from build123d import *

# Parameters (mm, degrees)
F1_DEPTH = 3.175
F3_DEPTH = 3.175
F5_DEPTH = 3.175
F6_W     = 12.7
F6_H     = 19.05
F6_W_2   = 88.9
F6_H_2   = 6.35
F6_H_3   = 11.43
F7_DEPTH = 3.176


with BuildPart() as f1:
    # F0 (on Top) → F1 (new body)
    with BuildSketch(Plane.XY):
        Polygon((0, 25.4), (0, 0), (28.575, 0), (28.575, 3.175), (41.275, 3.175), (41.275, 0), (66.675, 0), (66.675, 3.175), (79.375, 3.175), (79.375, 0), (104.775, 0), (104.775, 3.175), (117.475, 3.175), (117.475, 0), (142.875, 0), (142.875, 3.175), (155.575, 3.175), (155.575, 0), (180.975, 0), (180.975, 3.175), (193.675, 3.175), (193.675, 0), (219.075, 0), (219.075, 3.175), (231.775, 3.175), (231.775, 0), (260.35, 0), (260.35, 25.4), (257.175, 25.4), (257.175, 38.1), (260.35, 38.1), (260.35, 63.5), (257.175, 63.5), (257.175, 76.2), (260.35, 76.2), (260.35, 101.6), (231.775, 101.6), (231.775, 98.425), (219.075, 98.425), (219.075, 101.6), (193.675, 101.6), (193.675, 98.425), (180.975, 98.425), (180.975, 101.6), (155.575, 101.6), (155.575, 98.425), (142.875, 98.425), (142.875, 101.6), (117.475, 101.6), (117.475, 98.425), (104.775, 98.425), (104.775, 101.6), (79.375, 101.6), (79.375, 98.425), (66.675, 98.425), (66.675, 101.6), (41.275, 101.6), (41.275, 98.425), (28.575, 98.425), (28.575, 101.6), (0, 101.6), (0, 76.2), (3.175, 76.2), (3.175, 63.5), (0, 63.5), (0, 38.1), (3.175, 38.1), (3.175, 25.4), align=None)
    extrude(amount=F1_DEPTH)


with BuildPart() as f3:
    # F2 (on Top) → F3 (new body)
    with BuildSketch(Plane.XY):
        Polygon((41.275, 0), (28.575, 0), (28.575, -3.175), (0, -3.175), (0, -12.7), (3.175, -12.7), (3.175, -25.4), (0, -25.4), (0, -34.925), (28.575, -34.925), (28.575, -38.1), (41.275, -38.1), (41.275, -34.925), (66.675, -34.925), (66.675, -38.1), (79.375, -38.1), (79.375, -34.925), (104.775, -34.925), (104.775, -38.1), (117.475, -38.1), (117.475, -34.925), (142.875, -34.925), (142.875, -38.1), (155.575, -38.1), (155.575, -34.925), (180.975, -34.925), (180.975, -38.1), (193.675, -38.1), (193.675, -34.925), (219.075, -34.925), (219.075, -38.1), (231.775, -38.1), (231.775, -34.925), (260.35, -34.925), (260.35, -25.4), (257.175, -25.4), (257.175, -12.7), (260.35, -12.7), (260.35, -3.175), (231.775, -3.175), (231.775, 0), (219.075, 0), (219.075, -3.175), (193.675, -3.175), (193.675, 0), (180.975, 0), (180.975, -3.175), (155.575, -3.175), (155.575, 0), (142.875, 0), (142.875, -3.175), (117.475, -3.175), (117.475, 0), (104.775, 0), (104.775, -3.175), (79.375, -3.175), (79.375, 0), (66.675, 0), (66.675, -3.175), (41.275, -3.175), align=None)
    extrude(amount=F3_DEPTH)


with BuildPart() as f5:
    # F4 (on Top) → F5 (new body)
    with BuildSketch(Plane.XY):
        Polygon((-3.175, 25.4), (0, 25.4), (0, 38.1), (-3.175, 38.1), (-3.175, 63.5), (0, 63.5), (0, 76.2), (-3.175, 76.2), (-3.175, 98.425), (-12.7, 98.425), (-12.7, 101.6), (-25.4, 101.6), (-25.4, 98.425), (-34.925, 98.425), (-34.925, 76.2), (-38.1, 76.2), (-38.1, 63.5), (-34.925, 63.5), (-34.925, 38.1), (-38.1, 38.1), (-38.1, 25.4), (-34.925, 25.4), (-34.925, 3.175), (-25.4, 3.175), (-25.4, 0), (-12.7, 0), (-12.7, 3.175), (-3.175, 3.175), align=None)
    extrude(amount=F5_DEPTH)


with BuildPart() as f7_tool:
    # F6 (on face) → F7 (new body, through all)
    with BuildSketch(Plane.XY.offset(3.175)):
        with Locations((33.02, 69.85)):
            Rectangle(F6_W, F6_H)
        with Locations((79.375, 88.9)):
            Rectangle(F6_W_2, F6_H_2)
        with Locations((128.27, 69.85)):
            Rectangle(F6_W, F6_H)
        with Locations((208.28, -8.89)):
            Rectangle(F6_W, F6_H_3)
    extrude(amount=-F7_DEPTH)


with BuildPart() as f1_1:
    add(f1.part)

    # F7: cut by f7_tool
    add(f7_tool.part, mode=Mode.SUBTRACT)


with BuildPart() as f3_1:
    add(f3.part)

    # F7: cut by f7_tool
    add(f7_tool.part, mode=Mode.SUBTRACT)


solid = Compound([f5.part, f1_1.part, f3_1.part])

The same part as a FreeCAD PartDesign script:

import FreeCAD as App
import Part
import Sketcher

V = App.Vector
Q = App.Units.Quantity


def add_polygon(sketch, points):
    """Adds a closed chain of lines whose ends are joined by coincident constraints."""
    first, n = sketch.GeometryCount, len(points)
    for a, b in zip(points, points[1:] + points[:1]):
        sketch.addGeometry(Part.LineSegment(App.Vector(*a, 0), App.Vector(*b, 0)), False)
    for i in range(n):
        sketch.addConstraint(Sketcher.Constraint("Coincident", first + i, 2, first + (i + 1) % n, 1))

doc = App.newDocument("Part")
params = doc.addObject("Spreadsheet::Sheet", "Params")
for row, (alias, value) in enumerate([
    ("sketch1_width", "1 in"),
    ("sketch1_width2", "0.5 in"),
    ("sketch1_width3", "1.125 in"),
    ("sketch1_width4", "0.125 in"),
    ("pad1_length", "0.125 in"),
    ("sketch2_width", "1 in"),
    ("sketch2_width2", "0.5 in"),
    ("sketch2_width3", "1.125 in"),
    ("pad2_length", "0.125 in"),
    ("sketch3_height", "1 in"),
    ("sketch3_width", "0.5 in"),
    ("sketch3_width2", "0.125 in"),
    ("pad3_length", "0.125 in"),
    ("sketch4_width", "0.5 in"),
    ("sketch4_width2", "3.5 in"),
    ("sketch4_height", "0.75 in"),
    ("sketch4_height2", "0.25 in"),
    ("sketch4_height3", "0.45 in"),
    ("pad4_length", "3.176 mm"),
], start=1):
    params.set(f"A{row}", alias)
    params.set(f"B{row}", "=" + value)
    params.setAlias(f"B{row}", alias)

body = doc.addObject("PartDesign::Body", "Body")

sketch1 = body.newObject("Sketcher::SketchObject", "Sketch")
sketch1.AttachmentSupport = (doc.getObject("XY_Plane"), [""])
sketch1.MapMode = "FlatFace"
add_polygon(sketch1, [(0, 25.4), (0, 0), (28.6, 0), (28.6, 3.2), (41.3, 3.2), (41.3, 0), (66.7, 0), (66.7, 3.2), (79.4, 3.2), (79.4, 0), (104.8, 0), (104.8, 3.2), (117.5, 3.2), (117.5, 0), (142.9, 0), (142.9, 3.2), (155.6, 3.2), (155.6, 0), (181, 0), (181, 3.2), (193.7, 3.2), (193.7, 0), (219.1, 0), (219.1, 3.2), (231.8, 3.2), (231.8, 0), (260.4, 0), (260.4, 25.4), (257.2, 25.4), (257.2, 38.1), (260.4, 38.1), (260.4, 63.5), (257.2, 63.5), (257.2, 76.2), (260.4, 76.2), (260.4, 101.6), (231.8, 101.6), (231.8, 98.4), (219.1, 98.4), (219.1, 101.6), (193.7, 101.6), (193.7, 98.4), (181, 98.4), (181, 101.6), (155.6, 101.6), (155.6, 98.4), (142.9, 98.4), (142.9, 101.6), (117.5, 101.6), (117.5, 98.4), (104.8, 98.4), (104.8, 101.6), (79.4, 101.6), (79.4, 98.4), (66.7, 98.4), (66.7, 101.6), (41.3, 101.6), (41.3, 98.4), (28.6, 98.4), (28.6, 101.6), (0, 101.6), (0, 76.2), (3.2, 76.2), (3.2, 63.5), (0, 63.5), (0, 38.1), (3.2, 38.1), (3.2, 25.4)])
sketch1.addConstraint([
    Sketcher.Constraint("Vertical", 0),
    Sketcher.Constraint("Horizontal", 1),
    Sketcher.Constraint("Vertical", 2),
    Sketcher.Constraint("Horizontal", 3),
    Sketcher.Constraint("Vertical", 4),
    Sketcher.Constraint("Horizontal", 5),
    Sketcher.Constraint("Vertical", 6),
    Sketcher.Constraint("Horizontal", 7),
    Sketcher.Constraint("Vertical", 8),
    Sketcher.Constraint("Horizontal", 9),
    Sketcher.Constraint("Vertical", 10),
    Sketcher.Constraint("Horizontal", 11),
    Sketcher.Constraint("Vertical", 12),
    Sketcher.Constraint("Horizontal", 13),
    Sketcher.Constraint("Vertical", 14),
    Sketcher.Constraint("Horizontal", 15),
    Sketcher.Constraint("Vertical", 16),
    Sketcher.Constraint("Horizontal", 17),
    Sketcher.Constraint("Vertical", 18),
    Sketcher.Constraint("Horizontal", 19),
    Sketcher.Constraint("Vertical", 20),
    Sketcher.Constraint("Horizontal", 21),
    Sketcher.Constraint("Vertical", 22),
    Sketcher.Constraint("Horizontal", 23),
    Sketcher.Constraint("Vertical", 24),
    Sketcher.Constraint("Horizontal", 25),
    Sketcher.Constraint("Vertical", 26),
    Sketcher.Constraint("Horizontal", 27),
    Sketcher.Constraint("Vertical", 28),
    Sketcher.Constraint("Horizontal", 29),
    Sketcher.Constraint("Vertical", 30),
    Sketcher.Constraint("Horizontal", 31),
    Sketcher.Constraint("Vertical", 32),
    Sketcher.Constraint("Horizontal", 33),
    Sketcher.Constraint("Vertical", 34),
    Sketcher.Constraint("Horizontal", 35),
    Sketcher.Constraint("Vertical", 36),
    Sketcher.Constraint("Horizontal", 37),
    Sketcher.Constraint("Vertical", 38),
    Sketcher.Constraint("Horizontal", 39),
    Sketcher.Constraint("Vertical", 40),
    Sketcher.Constraint("Horizontal", 41),
    Sketcher.Constraint("Vertical", 42),
    Sketcher.Constraint("Horizontal", 43),
    Sketcher.Constraint("Vertical", 44),
    Sketcher.Constraint("Horizontal", 45),
    Sketcher.Constraint("Vertical", 46),
    Sketcher.Constraint("Horizontal", 47),
    Sketcher.Constraint("Vertical", 48),
    Sketcher.Constraint("Horizontal", 49),
    Sketcher.Constraint("Vertical", 50),
    Sketcher.Constraint("Horizontal", 51),
    Sketcher.Constraint("Vertical", 52),
    Sketcher.Constraint("Horizontal", 53),
    Sketcher.Constraint("Vertical", 54),
    Sketcher.Constraint("Horizontal", 55),
    Sketcher.Constraint("Vertical", 56),
    Sketcher.Constraint("Horizontal", 57),
    Sketcher.Constraint("Vertical", 58),
    Sketcher.Constraint("Horizontal", 59),
    Sketcher.Constraint("Vertical", 60),
    Sketcher.Constraint("Horizontal", 61),
    Sketcher.Constraint("Vertical", 62),
    Sketcher.Constraint("Horizontal", 63),
    Sketcher.Constraint("Vertical", 64),
    Sketcher.Constraint("Horizontal", 65),
    Sketcher.Constraint("Vertical", 66),
    Sketcher.Constraint("Horizontal", 67),
    Sketcher.Constraint("Coincident", 0, 2, -1, 1),
    Sketcher.Constraint("PointOnObject", 4, 2, -1),
    Sketcher.Constraint("PointOnObject", 8, 2, -1),
    Sketcher.Constraint("PointOnObject", 12, 2, -1),
    Sketcher.Constraint("PointOnObject", 16, 2, -1),
    Sketcher.Constraint("PointOnObject", 20, 2, -1),
    Sketcher.Constraint("PointOnObject", 24, 2, -1),
    Sketcher.Constraint("PointOnObject", 59, 2, -2),
    Sketcher.Constraint("PointOnObject", 63, 2, -2),
    Sketcher.Constraint("Horizontal", 3, 2, 6, 2),
    Sketcher.Constraint("Horizontal", 7, 2, 10, 2),
    Sketcher.Constraint("Horizontal", 11, 2, 14, 2),
    Sketcher.Constraint("Horizontal", 15, 2, 18, 2),
    Sketcher.Constraint("Horizontal", 19, 2, 22, 2),
    Sketcher.Constraint("Horizontal", 35, 2, 38, 2),
    Sketcher.Constraint("Horizontal", 37, 2, 40, 2),
    Sketcher.Constraint("Horizontal", 39, 2, 42, 2),
    Sketcher.Constraint("Horizontal", 41, 2, 44, 2),
    Sketcher.Constraint("Horizontal", 43, 2, 46, 2),
    Sketcher.Constraint("Horizontal", 45, 2, 48, 2),
    Sketcher.Constraint("Horizontal", 47, 2, 50, 2),
    Sketcher.Constraint("Horizontal", 49, 2, 52, 2),
    Sketcher.Constraint("Horizontal", 51, 2, 54, 2),
    Sketcher.Constraint("Horizontal", 53, 2, 56, 2),
    Sketcher.Constraint("Horizontal", 55, 2, 58, 2),
    Sketcher.Constraint("Horizontal", 33, 2, 60, 2),
    Sketcher.Constraint("Horizontal", 31, 2, 62, 2),
    Sketcher.Constraint("Horizontal", 29, 2, 64, 2),
    Sketcher.Constraint("Horizontal", 27, 2, 66, 2),
    Sketcher.Constraint("Vertical", 26, 2, 29, 2),
    Sketcher.Constraint("Vertical", 28, 2, 31, 2),
    Sketcher.Constraint("Vertical", 30, 2, 33, 2),
    Sketcher.Constraint("Vertical", 24, 2, 35, 2),
    Sketcher.Constraint("Vertical", 22, 2, 37, 2),
    Sketcher.Constraint("Vertical", 20, 2, 39, 2),
    Sketcher.Constraint("Vertical", 18, 2, 41, 2),
    Sketcher.Constraint("Vertical", 16, 2, 43, 2),
    Sketcher.Constraint("Vertical", 14, 2, 45, 2),
    Sketcher.Constraint("Vertical", 12, 2, 47, 2),
    Sketcher.Constraint("Vertical", 10, 2, 49, 2),
    Sketcher.Constraint("Vertical", 8, 2, 51, 2),
    Sketcher.Constraint("Vertical", 6, 2, 53, 2),
    Sketcher.Constraint("Vertical", 4, 2, 55, 2),
    Sketcher.Constraint("Vertical", 2, 2, 57, 2),
    Sketcher.Constraint("Vertical", 62, 2, 65, 2),
    Sketcher.Constraint("Equal", 3, 7),
    Sketcher.Constraint("Equal", 5, 9),
    Sketcher.Constraint("Equal", 7, 11),
    Sketcher.Constraint("Equal", 9, 13),
    Sketcher.Constraint("Equal", 11, 15),
    Sketcher.Constraint("Equal", 13, 17),
    Sketcher.Constraint("Equal", 15, 19),
    Sketcher.Constraint("Equal", 17, 21),
    Sketcher.Constraint("Equal", 19, 23),
    Sketcher.Constraint("Equal", 1, 25),
    Sketcher.Constraint("Equal", 33, 61),
    Sketcher.Constraint("Equal", 55, 0),
    Sketcher.Constraint("Equal", 67, 2),
    Sketcher.Constraint("Equal", 57, 28),
    Sketcher.Constraint("Equal", 26, 30),
    Sketcher.Constraint("Equal", 28, 32),
    Sketcher.Constraint("Equal", 30, 34),
    Sketcher.Constraint("Equal", 24, 36),
    Sketcher.Constraint("DistanceX", 5, 1, 5, 2, Q("1 in")),
    Sketcher.Constraint("DistanceX", 3, 1, 3, 2, Q("0.5 in")),
    Sketcher.Constraint("DistanceX", 1, 1, 1, 2, Q("1.125 in")),
    Sketcher.Constraint("DistanceX", 27, 2, 27, 1, Q("0.125 in")),
])
sketch1.setExpression("Constraints[199]", "Params.sketch1_width")
sketch1.setExpression("Constraints[200]", "Params.sketch1_width2")
sketch1.setExpression("Constraints[201]", "Params.sketch1_width3")
sketch1.setExpression("Constraints[202]", "Params.sketch1_width4")
pad1 = body.newObject("PartDesign::Pad", "Pad")
pad1.Profile = sketch1
pad1.setExpression("Length", "Params.pad1_length")
body2 = doc.addObject("PartDesign::Body", "Body001")

sketch2 = body2.newObject("Sketcher::SketchObject", "Sketch001")
sketch2.AttachmentSupport = (doc.getObject("XY_Plane001"), [""])
sketch2.MapMode = "FlatFace"
add_polygon(sketch2, [(41.3, 0), (28.6, 0), (28.6, -3.2), (0, -3.2), (0, -12.7), (3.2, -12.7), (3.2, -25.4), (0, -25.4), (0, -34.9), (28.6, -34.9), (28.6, -38.1), (41.3, -38.1), (41.3, -34.9), (66.7, -34.9), (66.7, -38.1), (79.4, -38.1), (79.4, -34.9), (104.8, -34.9), (104.8, -38.1), (117.5, -38.1), (117.5, -34.9), (142.9, -34.9), (142.9, -38.1), (155.6, -38.1), (155.6, -34.9), (181, -34.9), (181, -38.1), (193.7, -38.1), (193.7, -34.9), (219.1, -34.9), (219.1, -38.1), (231.8, -38.1), (231.8, -34.9), (260.4, -34.9), (260.4, -25.4), (257.2, -25.4), (257.2, -12.7), (260.4, -12.7), (260.4, -3.2), (231.8, -3.2), (231.8, 0), (219.1, 0), (219.1, -3.2), (193.7, -3.2), (193.7, 0), (181, 0), (181, -3.2), (155.6, -3.2), (155.6, 0), (142.9, 0), (142.9, -3.2), (117.5, -3.2), (117.5, 0), (104.8, 0), (104.8, -3.2), (79.4, -3.2), (79.4, 0), (66.7, 0), (66.7, -3.2), (41.3, -3.2)])
sketch2.addConstraint([
    Sketcher.Constraint("Horizontal", 0),
    Sketcher.Constraint("Vertical", 1),
    Sketcher.Constraint("Horizontal", 2),
    Sketcher.Constraint("Vertical", 3),
    Sketcher.Constraint("Horizontal", 4),
    Sketcher.Constraint("Vertical", 5),
    Sketcher.Constraint("Horizontal", 6),
    Sketcher.Constraint("Vertical", 7),
    Sketcher.Constraint("Horizontal", 8),
    Sketcher.Constraint("Vertical", 9),
    Sketcher.Constraint("Horizontal", 10),
    Sketcher.Constraint("Vertical", 11),
    Sketcher.Constraint("Horizontal", 12),
    Sketcher.Constraint("Vertical", 13),
    Sketcher.Constraint("Horizontal", 14),
    Sketcher.Constraint("Vertical", 15),
    Sketcher.Constraint("Horizontal", 16),
    Sketcher.Constraint("Vertical", 17),
    Sketcher.Constraint("Horizontal", 18),
    Sketcher.Constraint("Vertical", 19),
    Sketcher.Constraint("Horizontal", 20),
    Sketcher.Constraint("Vertical", 21),
    Sketcher.Constraint("Horizontal", 22),
    Sketcher.Constraint("Vertical", 23),
    Sketcher.Constraint("Horizontal", 24),
    Sketcher.Constraint("Vertical", 25),
    Sketcher.Constraint("Horizontal", 26),
    Sketcher.Constraint("Vertical", 27),
    Sketcher.Constraint("Horizontal", 28),
    Sketcher.Constraint("Vertical", 29),
    Sketcher.Constraint("Horizontal", 30),
    Sketcher.Constraint("Vertical", 31),
    Sketcher.Constraint("Horizontal", 32),
    Sketcher.Constraint("Vertical", 33),
    Sketcher.Constraint("Horizontal", 34),
    Sketcher.Constraint("Vertical", 35),
    Sketcher.Constraint("Horizontal", 36),
    Sketcher.Constraint("Vertical", 37),
    Sketcher.Constraint("Horizontal", 38),
    Sketcher.Constraint("Vertical", 39),
    Sketcher.Constraint("Horizontal", 40),
    Sketcher.Constraint("Vertical", 41),
    Sketcher.Constraint("Horizontal", 42),
    Sketcher.Constraint("Vertical", 43),
    Sketcher.Constraint("Horizontal", 44),
    Sketcher.Constraint("Vertical", 45),
    Sketcher.Constraint("Horizontal", 46),
    Sketcher.Constraint("Vertical", 47),
    Sketcher.Constraint("Horizontal", 48),
    Sketcher.Constraint("Vertical", 49),
    Sketcher.Constraint("Horizontal", 50),
    Sketcher.Constraint("Vertical", 51),
    Sketcher.Constraint("Horizontal", 52),
    Sketcher.Constraint("Vertical", 53),
    Sketcher.Constraint("Horizontal", 54),
    Sketcher.Constraint("Vertical", 55),
    Sketcher.Constraint("Horizontal", 56),
    Sketcher.Constraint("Vertical", 57),
    Sketcher.Constraint("Horizontal", 58),
    Sketcher.Constraint("Vertical", 59),
    Sketcher.Constraint("PointOnObject", 0, 2, -1),
    Sketcher.Constraint("PointOnObject", 2, 2, -2),
    Sketcher.Constraint("PointOnObject", 6, 2, -2),
    Sketcher.Constraint("PointOnObject", 39, 2, -1),
    Sketcher.Constraint("PointOnObject", 43, 2, -1),
    Sketcher.Constraint("PointOnObject", 47, 2, -1),
    Sketcher.Constraint("PointOnObject", 51, 2, -1),
    Sketcher.Constraint("PointOnObject", 55, 2, -1),
    Sketcher.Constraint("Horizontal", 8, 2, 11, 2),
    Sketcher.Constraint("Horizontal", 10, 2, 13, 2),
    Sketcher.Constraint("Horizontal", 12, 2, 15, 2),
    Sketcher.Constraint("Horizontal", 14, 2, 17, 2),
    Sketcher.Constraint("Horizontal", 16, 2, 19, 2),
    Sketcher.Constraint("Horizontal", 18, 2, 21, 2),
    Sketcher.Constraint("Horizontal", 20, 2, 23, 2),
    Sketcher.Constraint("Horizontal", 22, 2, 25, 2),
    Sketcher.Constraint("Horizontal", 24, 2, 27, 2),
    Sketcher.Constraint("Horizontal", 26, 2, 29, 2),
    Sketcher.Constraint("Horizontal", 28, 2, 31, 2),
    Sketcher.Constraint("Horizontal", 6, 2, 33, 2),
    Sketcher.Constraint("Horizontal", 4, 2, 35, 2),
    Sketcher.Constraint("Horizontal", 2, 2, 37, 2),
    Sketcher.Constraint("Horizontal", 38, 2, 41, 2),
    Sketcher.Constraint("Horizontal", 42, 2, 45, 2),
    Sketcher.Constraint("Horizontal", 46, 2, 49, 2),
    Sketcher.Constraint("Horizontal", 50, 2, 53, 2),
    Sketcher.Constraint("Horizontal", 54, 2, 57, 2),
    Sketcher.Constraint("Vertical", 1, 2, 8, 2),
    Sketcher.Constraint("Vertical", 33, 2, 36, 2),
    Sketcher.Constraint("Vertical", 31, 2, 38, 2),
    Sketcher.Constraint("Vertical", 29, 2, 40, 2),
    Sketcher.Constraint("Vertical", 27, 2, 42, 2),
    Sketcher.Constraint("Vertical", 25, 2, 44, 2),
    Sketcher.Constraint("Vertical", 23, 2, 46, 2),
    Sketcher.Constraint("Vertical", 21, 2, 48, 2),
    Sketcher.Constraint("Vertical", 19, 2, 50, 2),
    Sketcher.Constraint("Vertical", 17, 2, 52, 2),
    Sketcher.Constraint("Vertical", 15, 2, 54, 2),
    Sketcher.Constraint("Vertical", 13, 2, 56, 2),
    Sketcher.Constraint("Vertical", 11, 2, 58, 2),
    Sketcher.Constraint("Equal", 10, 14),
    Sketcher.Constraint("Equal", 12, 16),
    Sketcher.Constraint("Equal", 14, 18),
    Sketcher.Constraint("Equal", 16, 20),
    Sketcher.Constraint("Equal", 18, 22),
    Sketcher.Constraint("Equal", 20, 24),
    Sketcher.Constraint("Equal", 22, 26),
    Sketcher.Constraint("Equal", 24, 28),
    Sketcher.Constraint("Equal", 26, 30),
    Sketcher.Constraint("Equal", 8, 32),
    Sketcher.Constraint("Equal", 6, 34),
    Sketcher.Constraint("Equal", 36, 1),
    Sketcher.Constraint("Equal", 56, 5),
    Sketcher.Constraint("Equal", 3, 7),
    Sketcher.Constraint("Equal", 1, 9),
    Sketcher.Constraint("DistanceX", 12, 1, 12, 2, Q("1 in")),
    Sketcher.Constraint("DistanceX", 0, 2, 0, 1, Q("0.5 in")),
    Sketcher.Constraint("DistanceY", 5, 2, -1, 1, Q("1 in")),
    Sketcher.Constraint("DistanceX", 4, 2, 1, 2, Q("1 in")),
    Sketcher.Constraint("DistanceX", 2, 2, 2, 1, Q("1.125 in")),
])
sketch2.setExpression("Constraints[175]", "Params.sketch2_width")
sketch2.setExpression("Constraints[176]", "Params.sketch2_width2")
sketch2.setExpression("Constraints[179]", "Params.sketch2_width3")
pad2 = body2.newObject("PartDesign::Pad", "Pad001")
pad2.Profile = sketch2
pad2.setExpression("Length", "Params.pad2_length")
body3 = doc.addObject("PartDesign::Body", "Body002")

sketch3 = body3.newObject("Sketcher::SketchObject", "Sketch002")
sketch3.AttachmentSupport = (doc.getObject("XY_Plane002"), [""])
sketch3.MapMode = "FlatFace"
add_polygon(sketch3, [(-3.2, 25.4), (0, 25.4), (0, 38.1), (-3.2, 38.1), (-3.2, 63.5), (0, 63.5), (0, 76.2), (-3.2, 76.2), (-3.2, 98.4), (-12.7, 98.4), (-12.7, 101.6), (-25.4, 101.6), (-25.4, 98.4), (-34.9, 98.4), (-34.9, 76.2), (-38.1, 76.2), (-38.1, 63.5), (-34.9, 63.5), (-34.9, 38.1), (-38.1, 38.1), (-38.1, 25.4), (-34.9, 25.4), (-34.9, 3.2), (-25.4, 3.2), (-25.4, 0), (-12.7, 0), (-12.7, 3.2), (-3.2, 3.2)])
sketch3.addConstraint([
    Sketcher.Constraint("Horizontal", 0),
    Sketcher.Constraint("Vertical", 1),
    Sketcher.Constraint("Horizontal", 2),
    Sketcher.Constraint("Vertical", 3),
    Sketcher.Constraint("Horizontal", 4),
    Sketcher.Constraint("Vertical", 5),
    Sketcher.Constraint("Horizontal", 6),
    Sketcher.Constraint("Vertical", 7),
    Sketcher.Constraint("Horizontal", 8),
    Sketcher.Constraint("Vertical", 9),
    Sketcher.Constraint("Horizontal", 10),
    Sketcher.Constraint("Vertical", 11),
    Sketcher.Constraint("Horizontal", 12),
    Sketcher.Constraint("Vertical", 13),
    Sketcher.Constraint("Horizontal", 14),
    Sketcher.Constraint("Vertical", 15),
    Sketcher.Constraint("Horizontal", 16),
    Sketcher.Constraint("Vertical", 17),
    Sketcher.Constraint("Horizontal", 18),
    Sketcher.Constraint("Vertical", 19),
    Sketcher.Constraint("Horizontal", 20),
    Sketcher.Constraint("Vertical", 21),
    Sketcher.Constraint("Horizontal", 22),
    Sketcher.Constraint("Vertical", 23),
    Sketcher.Constraint("Horizontal", 24),
    Sketcher.Constraint("Vertical", 25),
    Sketcher.Constraint("Horizontal", 26),
    Sketcher.Constraint("Vertical", 27),
    Sketcher.Constraint("PointOnObject", 0, 2, -2),
    Sketcher.Constraint("PointOnObject", 4, 2, -2),
    Sketcher.Constraint("PointOnObject", 23, 2, -1),
    Sketcher.Constraint("Horizontal", 8, 2, 11, 2),
    Sketcher.Constraint("Horizontal", 6, 2, 13, 2),
    Sketcher.Constraint("Horizontal", 4, 2, 15, 2),
    Sketcher.Constraint("Horizontal", 2, 2, 17, 2),
    Sketcher.Constraint("Horizontal", 0, 2, 19, 2),
    Sketcher.Constraint("Horizontal", 22, 2, 25, 2),
    Sketcher.Constraint("Vertical", 3, 2, 6, 2),
    Sketcher.Constraint("Vertical", 13, 2, 16, 2),
    Sketcher.Constraint("Vertical", 15, 2, 18, 2),
    Sketcher.Constraint("Vertical", 17, 2, 20, 2),
    Sketcher.Constraint("Vertical", 11, 2, 22, 2),
    Sketcher.Constraint("Vertical", 9, 2, 24, 2),
    Sketcher.Constraint("Vertical", 7, 2, 26, 2),
    Sketcher.Constraint("Equal", 8, 12),
    Sketcher.Constraint("Equal", 6, 14),
    Sketcher.Constraint("Equal", 24, 1),
    Sketcher.Constraint("Equal", 1, 5),
    Sketcher.Constraint("Equal", 20, 9),
    Sketcher.Constraint("Equal", 13, 21),
    Sketcher.Constraint("Equal", 11, 23),
    Sketcher.Constraint("DistanceY", 3, 1, 3, 2, Q("1 in")),
    Sketcher.Constraint("DistanceX", 10, 2, 10, 1, Q("0.5 in")),
    Sketcher.Constraint("DistanceY", -1, 1, 0, 2, Q("1 in")),
    Sketcher.Constraint("DistanceX", 10, 2, -1, 1, Q("1 in")),
    Sketcher.Constraint("DistanceX", 0, 1, 0, 2, Q("0.125 in")),
])
sketch3.setExpression("Constraints[79]", "Params.sketch3_height")
sketch3.setExpression("Constraints[80]", "Params.sketch3_width")
sketch3.setExpression("Constraints[83]", "Params.sketch3_width2")
pad3 = body3.newObject("PartDesign::Pad", "Pad002")
pad3.Profile = sketch3
pad3.setExpression("Length", "Params.pad3_length")
body4 = doc.addObject("PartDesign::Body", "Body003")
body4.AllowCompound = True

sketch4 = body4.newObject("Sketcher::SketchObject", "Sketch003")
sketch4.AttachmentSupport = (doc.getObject("XY_Plane003"), [""])
sketch4.MapMode = "FlatFace"
sketch4.AttachmentOffset = App.Placement(V(0, 0, 0.125 * 25.4), App.Rotation())
add_polygon(sketch4, [(27, 79), (27, 60), (39, 60), (39, 79)])
add_polygon(sketch4, [(35, 92), (35, 86), (124, 86), (124, 92)])
add_polygon(sketch4, [(122, 79), (122, 60), (135, 60), (135, 79)])
add_polygon(sketch4, [(202, -3), (202, -15), (215, -15), (215, -3)])
sketch4.addConstraint([
    Sketcher.Constraint("Vertical", 0),
    Sketcher.Constraint("Horizontal", 1),
    Sketcher.Constraint("Vertical", 2),
    Sketcher.Constraint("Horizontal", 3),
    Sketcher.Constraint("Vertical", 4),
    Sketcher.Constraint("Horizontal", 5),
    Sketcher.Constraint("Vertical", 6),
    Sketcher.Constraint("Horizontal", 7),
    Sketcher.Constraint("Vertical", 8),
    Sketcher.Constraint("Horizontal", 9),
    Sketcher.Constraint("Vertical", 10),
    Sketcher.Constraint("Horizontal", 11),
    Sketcher.Constraint("Vertical", 12),
    Sketcher.Constraint("Horizontal", 13),
    Sketcher.Constraint("Vertical", 14),
    Sketcher.Constraint("Horizontal", 15),
    Sketcher.Constraint("Horizontal", 1, 2, 8, 2),
    Sketcher.Constraint("Horizontal", 3, 2, 10, 2),
    Sketcher.Constraint("Equal", 3, 9),
    Sketcher.Constraint("Equal", 11, 13),
    Sketcher.Constraint("DistanceX", 1, 1, 1, 2, Q("0.5 in")),
    Sketcher.Constraint("DistanceX", 5, 1, 5, 2, Q("3.5 in")),
    Sketcher.Constraint("DistanceY", 1, 2, 4, 2, Q("1 in")),
    Sketcher.Constraint("DistanceY", 0, 2, 0, 1, Q("0.75 in")),
    Sketcher.Constraint("DistanceY", 4, 2, 4, 1, Q("0.25 in")),
    Sketcher.Constraint("DistanceY", 12, 2, 12, 1, Q("0.45 in")),
    Sketcher.Constraint("DistanceX", -1, 1, 8, 2, Q("4.8 in")),
    Sketcher.Constraint("DistanceY", 12, 2, 10, 2, Q("3.7 in")),
    Sketcher.Constraint("DistanceX", -1, 1, 0, 2, Q("1.05 in")),
    Sketcher.Constraint("DistanceX", -1, 1, 12, 2, Q("7.95 in")),
    Sketcher.Constraint("DistanceY", -1, 1, 0, 2, Q("2.375 in")),
    Sketcher.Constraint("DistanceX", -1, 1, 4, 2, Q("1.375 in")),
])
sketch4.setExpression("Constraints[36]", "Params.sketch4_width")
sketch4.setExpression("Constraints[37]", "Params.sketch4_width2")
sketch4.setExpression("Constraints[39]", "Params.sketch4_height")
sketch4.setExpression("Constraints[40]", "Params.sketch4_height2")
sketch4.setExpression("Constraints[41]", "Params.sketch4_height3")
pad4 = body4.newObject("PartDesign::Pad", "Pad003")
pad4.Profile = sketch4
pad4.setExpression("Length", "Params.pad4_length")
pad4.Reversed = True
doc.recompute()

body5 = doc.addObject("PartDesign::Body", "Body004")
body5.BaseFeature = body4
boolean = body.newObject("PartDesign::Boolean", "Boolean")
boolean.Type = "Cut"
boolean.addObjects([body5])
doc.recompute()

boolean2 = body2.newObject("PartDesign::Boolean", "Boolean001")
boolean2.Type = "Cut"
boolean2.addObjects([body4])

doc.recompute()
